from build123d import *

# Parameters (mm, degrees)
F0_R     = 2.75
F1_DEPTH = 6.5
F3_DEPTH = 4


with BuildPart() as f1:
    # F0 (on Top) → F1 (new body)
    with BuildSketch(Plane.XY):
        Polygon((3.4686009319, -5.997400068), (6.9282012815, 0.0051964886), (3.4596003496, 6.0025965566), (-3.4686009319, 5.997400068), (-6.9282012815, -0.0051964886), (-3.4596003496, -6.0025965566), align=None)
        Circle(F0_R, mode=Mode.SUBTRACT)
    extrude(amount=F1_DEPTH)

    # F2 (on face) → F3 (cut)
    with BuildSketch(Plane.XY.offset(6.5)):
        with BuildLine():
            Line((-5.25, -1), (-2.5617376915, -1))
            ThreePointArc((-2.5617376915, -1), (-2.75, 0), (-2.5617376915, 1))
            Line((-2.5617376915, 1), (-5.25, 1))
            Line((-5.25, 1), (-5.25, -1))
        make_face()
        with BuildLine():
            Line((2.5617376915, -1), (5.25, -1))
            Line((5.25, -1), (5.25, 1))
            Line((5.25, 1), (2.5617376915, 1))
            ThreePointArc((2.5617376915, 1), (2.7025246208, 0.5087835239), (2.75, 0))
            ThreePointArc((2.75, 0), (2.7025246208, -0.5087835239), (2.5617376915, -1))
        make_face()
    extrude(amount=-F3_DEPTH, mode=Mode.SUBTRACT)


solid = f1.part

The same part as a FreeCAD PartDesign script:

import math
import FreeCAD as App
import Part
import Sketcher

doc = App.newDocument("Part")
body = doc.addObject("PartDesign::Body", "Body")

# Sketch on XY plane
sketch1 = doc.addObject("Sketcher::SketchObject", "Sketch")
body.addObject(sketch1)
sketch1.AttachmentSupport = (doc.XY_Plane, [""])
sketch1.MapMode = "FlatFace"
sketch1.addGeometry([
    Part.LineSegment(App.Vector(3.5, -6, 0), App.Vector(6.9, 0, 0)),  # 0
    Part.LineSegment(App.Vector(6.9, 0, 0), App.Vector(3.5, 6, 0)),  # 1
    Part.LineSegment(App.Vector(3.5, 6, 0), App.Vector(-3.5, 6, 0)),  # 2
    Part.LineSegment(App.Vector(-3.5, 6, 0), App.Vector(-6.9, 0, 0)),  # 3
    Part.LineSegment(App.Vector(-6.9, 0, 0), App.Vector(-3.5, -6, 0)),  # 4
    Part.LineSegment(App.Vector(-3.5, -6, 0), App.Vector(3.5, -6, 0)),  # 5
    Part.Circle(App.Vector(0, 0, 0), App.Vector(0, 0, 1), 2.8),  # 6
], False)
sketch1.addConstraint([
    Sketcher.Constraint("Coincident", 0, 2, 1, 1),
    Sketcher.Constraint("Coincident", 1, 2, 2, 1),
    Sketcher.Constraint("Coincident", 2, 2, 3, 1),
    Sketcher.Constraint("Coincident", 3, 2, 4, 1),
    Sketcher.Constraint("Coincident", 4, 2, 5, 1),
    Sketcher.Constraint("Coincident", 5, 2, 0, 1),
    Sketcher.Constraint("Coincident", 6, 3, -1, 1),
    Sketcher.Constraint("Symmetric", 0, 2, 3, 2, -1, 1),
    Sketcher.Constraint("Symmetric", 1, 2, 4, 2, -1, 1),
    Sketcher.Constraint("Symmetric", 2, 2, 5, 2, -1, 1),
    Sketcher.Constraint("Equal", 0, 1),
    Sketcher.Constraint("Equal", 1, 2),
    Sketcher.Constraint("Diameter", 6, 5.5),
    Sketcher.Constraint("DistanceX", 2, 2, 4, 2, 0.009001),
    Sketcher.Constraint("DistanceX", -1, 1, 0, 2, 6.928201),
    Sketcher.Constraint("DistanceX", -1, 1, 1, 2, 3.4596),
    Sketcher.Constraint("DistanceY", -1, 1, 2, 2, 5.9974),
])
pad1 = doc.addObject("PartDesign::Pad", "Pad")
body.addObject(pad1)
pad1.Profile = sketch1
pad1.Length = 6.5

# Sketch on XY plane
sketch2 = doc.addObject("Sketcher::SketchObject", "Sketch001")
body.addObject(sketch2)
sketch2.AttachmentSupport = (doc.XY_Plane, [""])
sketch2.MapMode = "FlatFace"
sketch2.AttachmentOffset = App.Placement(App.Vector(0, 0, 6.5), App.Rotation())
sketch2.addGeometry([
    Part.LineSegment(App.Vector(-5.2, -1, 0), App.Vector(-2.6, -1, 0)),  # 0
    Part.ArcOfCircle(Part.Circle(App.Vector(0, 0, 0), App.Vector(0, 0, 1), 2.8), math.radians(159), math.radians(201)),  # 1
    Part.LineSegment(App.Vector(-2.6, 1, 0), App.Vector(-5.2, 1, 0)),  # 2
    Part.LineSegment(App.Vector(-5.2, 1, 0), App.Vector(-5.2, -1, 0)),  # 3
    Part.LineSegment(App.Vector(2.6, -1, 0), App.Vector(5.2, -1, 0)),  # 4
    Part.LineSegment(App.Vector(5.2, -1, 0), App.Vector(5.2, 1, 0)),  # 5
    Part.LineSegment(App.Vector(5.2, 1, 0), App.Vector(2.6, 1, 0)),  # 6
    Part.ArcOfCircle(Part.Circle(App.Vector(0, 0, 0), App.Vector(0, 0, 1), 2.7), math.radians(0), math.radians(21)),  # 7
    Part.ArcOfCircle(Part.Circle(App.Vector(0, 0, 0), App.Vector(0, 0, 1), 2.7), math.radians(-21), math.radians(0)),  # 8
], False)
sketch2.addConstraint([
    Sketcher.Constraint("Coincident", 0, 2, 1, 2),
    Sketcher.Constraint("Coincident", 1, 1, 2, 1),
    Sketcher.Constraint("Coincident", 2, 2, 3, 1),
    Sketcher.Constraint("Coincident", 3, 2, 0, 1),
    Sketcher.Constraint("Coincident", 4, 2, 5, 1),
    Sketcher.Constraint("Coincident", 5, 2, 6, 1),
    Sketcher.Constraint("Coincident", 6, 2, 7, 2),
    Sketcher.Constraint("Tangent", 7, 1, 8, 2),
    Sketcher.Constraint("Coincident", 8, 1, 4, 1),
    Sketcher.Constraint("Horizontal", 0),
    Sketcher.Constraint("Horizontal", 2),
    Sketcher.Constraint("Vertical", 3),
    Sketcher.Constraint("Horizontal", 4),
    Sketcher.Constraint("Vertical", 5),
    Sketcher.Constraint("Horizontal", 6),
    Sketcher.Constraint("Coincident", 1, 3, -1, 1),
    Sketcher.Constraint("Coincident", 7, 3, -1, 1),
    Sketcher.Constraint("Equal", 1, 7),
    Sketcher.Constraint("Equal", 7, 8),
    Sketcher.Constraint("Symmetric", 2, 2, 4, 2, -1, 1),
    Sketcher.Constraint("PointOnObject", 7, 1, -1),
    Sketcher.Constraint("Horizontal", 3, 2, 4, 2),
    Sketcher.Constraint("Horizontal", 2, 2, 5, 2),
    Sketcher.Constraint("DistanceY", 3, 2, 3, 1, 2.0),
    Sketcher.Constraint("Radius", 1, 2.75),
    Sketcher.Constraint("DistanceX", 7, 1, 4, 2, 2.5),
])
pocket1 = doc.addObject("PartDesign::Pocket", "Pocket")
body.addObject(pocket1)
pocket1.Profile = sketch2
pocket1.Length = 4

doc.recompute()
